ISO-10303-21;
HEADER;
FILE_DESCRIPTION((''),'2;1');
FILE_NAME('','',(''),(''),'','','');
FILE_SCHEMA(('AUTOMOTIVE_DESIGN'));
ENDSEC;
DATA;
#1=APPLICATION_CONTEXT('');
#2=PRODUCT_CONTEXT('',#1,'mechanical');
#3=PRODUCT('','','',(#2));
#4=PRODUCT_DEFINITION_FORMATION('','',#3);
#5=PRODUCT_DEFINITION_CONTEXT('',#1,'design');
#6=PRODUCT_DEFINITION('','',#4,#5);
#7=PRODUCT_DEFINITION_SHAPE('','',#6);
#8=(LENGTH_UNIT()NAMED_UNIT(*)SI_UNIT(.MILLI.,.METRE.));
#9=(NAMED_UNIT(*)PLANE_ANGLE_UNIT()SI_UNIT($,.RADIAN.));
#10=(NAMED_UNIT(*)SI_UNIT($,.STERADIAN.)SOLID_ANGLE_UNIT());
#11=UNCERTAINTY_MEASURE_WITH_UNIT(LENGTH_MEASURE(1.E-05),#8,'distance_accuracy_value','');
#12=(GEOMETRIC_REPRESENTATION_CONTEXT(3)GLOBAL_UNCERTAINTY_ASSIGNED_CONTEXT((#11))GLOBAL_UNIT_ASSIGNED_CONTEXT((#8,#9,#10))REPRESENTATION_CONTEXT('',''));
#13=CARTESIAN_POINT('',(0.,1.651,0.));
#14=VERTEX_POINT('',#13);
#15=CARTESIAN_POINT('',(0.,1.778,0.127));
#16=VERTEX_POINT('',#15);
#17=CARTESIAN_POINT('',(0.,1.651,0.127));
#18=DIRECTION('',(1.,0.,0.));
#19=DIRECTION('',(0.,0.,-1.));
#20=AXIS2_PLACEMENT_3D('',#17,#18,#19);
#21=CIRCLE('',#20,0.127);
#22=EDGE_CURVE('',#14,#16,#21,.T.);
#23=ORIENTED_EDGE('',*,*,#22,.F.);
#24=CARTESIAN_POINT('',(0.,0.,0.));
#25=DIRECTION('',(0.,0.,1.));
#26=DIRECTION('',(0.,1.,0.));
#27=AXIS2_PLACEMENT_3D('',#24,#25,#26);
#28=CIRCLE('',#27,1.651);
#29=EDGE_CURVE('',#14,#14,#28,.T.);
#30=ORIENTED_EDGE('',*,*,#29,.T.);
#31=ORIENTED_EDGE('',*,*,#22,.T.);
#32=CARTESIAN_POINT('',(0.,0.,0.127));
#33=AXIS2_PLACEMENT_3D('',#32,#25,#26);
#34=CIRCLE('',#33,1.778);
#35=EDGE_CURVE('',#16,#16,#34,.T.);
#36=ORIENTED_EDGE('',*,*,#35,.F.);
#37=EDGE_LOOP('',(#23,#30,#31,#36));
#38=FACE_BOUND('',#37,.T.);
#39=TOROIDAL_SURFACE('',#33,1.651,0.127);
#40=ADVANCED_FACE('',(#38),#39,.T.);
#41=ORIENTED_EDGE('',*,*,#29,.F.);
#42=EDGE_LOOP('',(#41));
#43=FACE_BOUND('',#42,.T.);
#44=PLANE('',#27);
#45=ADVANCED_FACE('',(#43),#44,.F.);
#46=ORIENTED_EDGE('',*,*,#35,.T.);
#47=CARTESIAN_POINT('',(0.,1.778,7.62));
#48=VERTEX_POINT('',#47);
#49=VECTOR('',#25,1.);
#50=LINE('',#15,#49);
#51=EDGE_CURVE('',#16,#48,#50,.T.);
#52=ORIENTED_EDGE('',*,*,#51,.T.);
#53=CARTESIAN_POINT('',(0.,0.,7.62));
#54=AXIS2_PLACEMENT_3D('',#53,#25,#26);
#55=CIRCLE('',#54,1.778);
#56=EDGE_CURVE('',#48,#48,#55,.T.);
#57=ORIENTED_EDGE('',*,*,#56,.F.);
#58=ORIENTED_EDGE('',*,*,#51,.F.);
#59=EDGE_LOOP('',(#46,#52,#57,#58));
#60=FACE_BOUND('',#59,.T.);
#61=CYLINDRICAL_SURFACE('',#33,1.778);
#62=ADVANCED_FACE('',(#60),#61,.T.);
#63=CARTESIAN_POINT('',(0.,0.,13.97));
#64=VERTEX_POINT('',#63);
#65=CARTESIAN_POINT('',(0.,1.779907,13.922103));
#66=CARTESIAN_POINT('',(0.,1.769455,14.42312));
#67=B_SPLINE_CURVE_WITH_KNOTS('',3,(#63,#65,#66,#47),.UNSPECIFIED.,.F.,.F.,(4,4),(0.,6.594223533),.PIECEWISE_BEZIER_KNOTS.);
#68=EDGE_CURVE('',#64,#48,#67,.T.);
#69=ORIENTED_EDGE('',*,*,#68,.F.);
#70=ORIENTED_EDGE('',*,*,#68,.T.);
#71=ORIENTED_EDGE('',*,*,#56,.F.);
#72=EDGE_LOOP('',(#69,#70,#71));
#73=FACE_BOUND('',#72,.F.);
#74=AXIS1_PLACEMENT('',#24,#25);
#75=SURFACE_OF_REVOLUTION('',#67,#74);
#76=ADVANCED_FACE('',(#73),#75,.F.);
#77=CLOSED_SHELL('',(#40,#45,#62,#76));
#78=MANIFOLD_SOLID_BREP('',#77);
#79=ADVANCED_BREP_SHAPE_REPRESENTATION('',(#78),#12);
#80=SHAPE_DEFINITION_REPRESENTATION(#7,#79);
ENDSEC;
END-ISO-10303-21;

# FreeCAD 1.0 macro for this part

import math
import FreeCAD as App
import Part
import Sketcher
Q = App.Units.Quantity

doc = App.newDocument("Part")
body = doc.addObject("PartDesign::Body", "Body")

# Sketch on YZ plane
sketch1 = body.newObject("Sketcher::SketchObject", "Sketch")
sketch1.AttachmentSupport = (doc.getObject("YZ_Plane"), [""])
sketch1.MapMode = "FlatFace"
sketch1.addGeometry(Part.LineSegment(App.Vector(0, 13.97, 0), App.Vector(0, 0, 0)), False)
sketch1.addGeometry(Part.LineSegment(App.Vector(0, 0, 0), App.Vector(1.651, 0, 0)), False)
sketch1.addGeometry(Part.ArcOfCircle(Part.Circle(App.Vector(1.651, 0.127, 0), App.Vector(0, 0, 1), 0.127), math.radians(-90), math.radians(0)), False)
sketch1.addGeometry(Part.LineSegment(App.Vector(1.778, 0.127, 0), App.Vector(1.778, 7.62, 0)), False)
sketch1.addGeometry(Part.BSplineCurve([App.Vector(0, 13.97, 0), App.Vector(1.779907, 13.922103, 0), App.Vector(1.769455, 14.42312, 0), App.Vector(1.778, 7.62, 0)], [4, 4], [0, 6.594223533], False, 3, [1, 1, 1, 1], False), False)
sketch1.addConstraint(Sketcher.Constraint("Block", 4))
sketch1.addConstraint(Sketcher.Constraint("Coincident", 0, 2, 1, 1))
sketch1.addConstraint(Sketcher.Constraint("Tangent", 1, 2, 2, 1))
sketch1.addConstraint(Sketcher.Constraint("Tangent", 2, 2, 3, 1))
sketch1.addConstraint(Sketcher.Constraint("Coincident", 3, 2, 4, 2))
sketch1.addConstraint(Sketcher.Constraint("Coincident", 4, 1, 0, 1))
sketch1.addConstraint(Sketcher.Constraint("Vertical", 0))
sketch1.addConstraint(Sketcher.Constraint("Horizontal", 1))
sketch1.addConstraint(Sketcher.Constraint("Vertical", 3))
sketch1.addConstraint(Sketcher.Constraint("PointOnObject", 1, 2, -1))
sketch1.addConstraint(Sketcher.Constraint("Radius", 2, Q("0.005 in")))
revolution = body.newObject("PartDesign::Revolution", "Revolution")
revolution.Profile = sketch1
revolution.ReferenceAxis = (sketch1, ["V_Axis"])
revolution.Angle = 360

doc.recompute()
